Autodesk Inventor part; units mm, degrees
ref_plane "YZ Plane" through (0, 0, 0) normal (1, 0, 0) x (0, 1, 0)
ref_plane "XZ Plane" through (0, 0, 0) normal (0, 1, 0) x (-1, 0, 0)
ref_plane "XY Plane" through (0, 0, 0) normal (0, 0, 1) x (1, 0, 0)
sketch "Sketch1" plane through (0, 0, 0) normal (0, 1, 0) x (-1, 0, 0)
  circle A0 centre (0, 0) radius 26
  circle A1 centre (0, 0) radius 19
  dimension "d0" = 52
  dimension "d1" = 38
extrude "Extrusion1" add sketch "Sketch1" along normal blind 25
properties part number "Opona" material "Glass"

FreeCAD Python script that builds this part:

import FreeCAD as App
import Part
import Sketcher
from FreeCAD import Vector

doc = App.newDocument("Part")
body = doc.addObject("PartDesign::Body", "Body")

sketch1 = doc.addObject("Sketcher::SketchObject", "Sketch")
body.addObject(sketch1)
sketch1.AttachmentSupport = (doc.XZ_Plane, [""])
sketch1.MapMode = "FlatFace"
sketch1.addGeometry([
    Part.Circle(Vector(0, 0, 0), Vector(0, 0, 1), 26),
    Part.Circle(Vector(0, 0, 0), Vector(0, 0, 1), 19),
], False)
sketch1.addConstraint([
    Sketcher.Constraint("Coincident", 0, 3, -1, 1),
    Sketcher.Constraint("Coincident", 1, 3, -1, 1),
    Sketcher.Constraint("Diameter", 0, 52.0),
    Sketcher.Constraint("Diameter", 1, 38.0),
])
pad1 = doc.addObject("PartDesign::Pad", "Pad")
body.addObject(pad1)
pad1.Profile = sketch1
pad1.Length = 25
pad1.Reversed = True

doc.recompute()
